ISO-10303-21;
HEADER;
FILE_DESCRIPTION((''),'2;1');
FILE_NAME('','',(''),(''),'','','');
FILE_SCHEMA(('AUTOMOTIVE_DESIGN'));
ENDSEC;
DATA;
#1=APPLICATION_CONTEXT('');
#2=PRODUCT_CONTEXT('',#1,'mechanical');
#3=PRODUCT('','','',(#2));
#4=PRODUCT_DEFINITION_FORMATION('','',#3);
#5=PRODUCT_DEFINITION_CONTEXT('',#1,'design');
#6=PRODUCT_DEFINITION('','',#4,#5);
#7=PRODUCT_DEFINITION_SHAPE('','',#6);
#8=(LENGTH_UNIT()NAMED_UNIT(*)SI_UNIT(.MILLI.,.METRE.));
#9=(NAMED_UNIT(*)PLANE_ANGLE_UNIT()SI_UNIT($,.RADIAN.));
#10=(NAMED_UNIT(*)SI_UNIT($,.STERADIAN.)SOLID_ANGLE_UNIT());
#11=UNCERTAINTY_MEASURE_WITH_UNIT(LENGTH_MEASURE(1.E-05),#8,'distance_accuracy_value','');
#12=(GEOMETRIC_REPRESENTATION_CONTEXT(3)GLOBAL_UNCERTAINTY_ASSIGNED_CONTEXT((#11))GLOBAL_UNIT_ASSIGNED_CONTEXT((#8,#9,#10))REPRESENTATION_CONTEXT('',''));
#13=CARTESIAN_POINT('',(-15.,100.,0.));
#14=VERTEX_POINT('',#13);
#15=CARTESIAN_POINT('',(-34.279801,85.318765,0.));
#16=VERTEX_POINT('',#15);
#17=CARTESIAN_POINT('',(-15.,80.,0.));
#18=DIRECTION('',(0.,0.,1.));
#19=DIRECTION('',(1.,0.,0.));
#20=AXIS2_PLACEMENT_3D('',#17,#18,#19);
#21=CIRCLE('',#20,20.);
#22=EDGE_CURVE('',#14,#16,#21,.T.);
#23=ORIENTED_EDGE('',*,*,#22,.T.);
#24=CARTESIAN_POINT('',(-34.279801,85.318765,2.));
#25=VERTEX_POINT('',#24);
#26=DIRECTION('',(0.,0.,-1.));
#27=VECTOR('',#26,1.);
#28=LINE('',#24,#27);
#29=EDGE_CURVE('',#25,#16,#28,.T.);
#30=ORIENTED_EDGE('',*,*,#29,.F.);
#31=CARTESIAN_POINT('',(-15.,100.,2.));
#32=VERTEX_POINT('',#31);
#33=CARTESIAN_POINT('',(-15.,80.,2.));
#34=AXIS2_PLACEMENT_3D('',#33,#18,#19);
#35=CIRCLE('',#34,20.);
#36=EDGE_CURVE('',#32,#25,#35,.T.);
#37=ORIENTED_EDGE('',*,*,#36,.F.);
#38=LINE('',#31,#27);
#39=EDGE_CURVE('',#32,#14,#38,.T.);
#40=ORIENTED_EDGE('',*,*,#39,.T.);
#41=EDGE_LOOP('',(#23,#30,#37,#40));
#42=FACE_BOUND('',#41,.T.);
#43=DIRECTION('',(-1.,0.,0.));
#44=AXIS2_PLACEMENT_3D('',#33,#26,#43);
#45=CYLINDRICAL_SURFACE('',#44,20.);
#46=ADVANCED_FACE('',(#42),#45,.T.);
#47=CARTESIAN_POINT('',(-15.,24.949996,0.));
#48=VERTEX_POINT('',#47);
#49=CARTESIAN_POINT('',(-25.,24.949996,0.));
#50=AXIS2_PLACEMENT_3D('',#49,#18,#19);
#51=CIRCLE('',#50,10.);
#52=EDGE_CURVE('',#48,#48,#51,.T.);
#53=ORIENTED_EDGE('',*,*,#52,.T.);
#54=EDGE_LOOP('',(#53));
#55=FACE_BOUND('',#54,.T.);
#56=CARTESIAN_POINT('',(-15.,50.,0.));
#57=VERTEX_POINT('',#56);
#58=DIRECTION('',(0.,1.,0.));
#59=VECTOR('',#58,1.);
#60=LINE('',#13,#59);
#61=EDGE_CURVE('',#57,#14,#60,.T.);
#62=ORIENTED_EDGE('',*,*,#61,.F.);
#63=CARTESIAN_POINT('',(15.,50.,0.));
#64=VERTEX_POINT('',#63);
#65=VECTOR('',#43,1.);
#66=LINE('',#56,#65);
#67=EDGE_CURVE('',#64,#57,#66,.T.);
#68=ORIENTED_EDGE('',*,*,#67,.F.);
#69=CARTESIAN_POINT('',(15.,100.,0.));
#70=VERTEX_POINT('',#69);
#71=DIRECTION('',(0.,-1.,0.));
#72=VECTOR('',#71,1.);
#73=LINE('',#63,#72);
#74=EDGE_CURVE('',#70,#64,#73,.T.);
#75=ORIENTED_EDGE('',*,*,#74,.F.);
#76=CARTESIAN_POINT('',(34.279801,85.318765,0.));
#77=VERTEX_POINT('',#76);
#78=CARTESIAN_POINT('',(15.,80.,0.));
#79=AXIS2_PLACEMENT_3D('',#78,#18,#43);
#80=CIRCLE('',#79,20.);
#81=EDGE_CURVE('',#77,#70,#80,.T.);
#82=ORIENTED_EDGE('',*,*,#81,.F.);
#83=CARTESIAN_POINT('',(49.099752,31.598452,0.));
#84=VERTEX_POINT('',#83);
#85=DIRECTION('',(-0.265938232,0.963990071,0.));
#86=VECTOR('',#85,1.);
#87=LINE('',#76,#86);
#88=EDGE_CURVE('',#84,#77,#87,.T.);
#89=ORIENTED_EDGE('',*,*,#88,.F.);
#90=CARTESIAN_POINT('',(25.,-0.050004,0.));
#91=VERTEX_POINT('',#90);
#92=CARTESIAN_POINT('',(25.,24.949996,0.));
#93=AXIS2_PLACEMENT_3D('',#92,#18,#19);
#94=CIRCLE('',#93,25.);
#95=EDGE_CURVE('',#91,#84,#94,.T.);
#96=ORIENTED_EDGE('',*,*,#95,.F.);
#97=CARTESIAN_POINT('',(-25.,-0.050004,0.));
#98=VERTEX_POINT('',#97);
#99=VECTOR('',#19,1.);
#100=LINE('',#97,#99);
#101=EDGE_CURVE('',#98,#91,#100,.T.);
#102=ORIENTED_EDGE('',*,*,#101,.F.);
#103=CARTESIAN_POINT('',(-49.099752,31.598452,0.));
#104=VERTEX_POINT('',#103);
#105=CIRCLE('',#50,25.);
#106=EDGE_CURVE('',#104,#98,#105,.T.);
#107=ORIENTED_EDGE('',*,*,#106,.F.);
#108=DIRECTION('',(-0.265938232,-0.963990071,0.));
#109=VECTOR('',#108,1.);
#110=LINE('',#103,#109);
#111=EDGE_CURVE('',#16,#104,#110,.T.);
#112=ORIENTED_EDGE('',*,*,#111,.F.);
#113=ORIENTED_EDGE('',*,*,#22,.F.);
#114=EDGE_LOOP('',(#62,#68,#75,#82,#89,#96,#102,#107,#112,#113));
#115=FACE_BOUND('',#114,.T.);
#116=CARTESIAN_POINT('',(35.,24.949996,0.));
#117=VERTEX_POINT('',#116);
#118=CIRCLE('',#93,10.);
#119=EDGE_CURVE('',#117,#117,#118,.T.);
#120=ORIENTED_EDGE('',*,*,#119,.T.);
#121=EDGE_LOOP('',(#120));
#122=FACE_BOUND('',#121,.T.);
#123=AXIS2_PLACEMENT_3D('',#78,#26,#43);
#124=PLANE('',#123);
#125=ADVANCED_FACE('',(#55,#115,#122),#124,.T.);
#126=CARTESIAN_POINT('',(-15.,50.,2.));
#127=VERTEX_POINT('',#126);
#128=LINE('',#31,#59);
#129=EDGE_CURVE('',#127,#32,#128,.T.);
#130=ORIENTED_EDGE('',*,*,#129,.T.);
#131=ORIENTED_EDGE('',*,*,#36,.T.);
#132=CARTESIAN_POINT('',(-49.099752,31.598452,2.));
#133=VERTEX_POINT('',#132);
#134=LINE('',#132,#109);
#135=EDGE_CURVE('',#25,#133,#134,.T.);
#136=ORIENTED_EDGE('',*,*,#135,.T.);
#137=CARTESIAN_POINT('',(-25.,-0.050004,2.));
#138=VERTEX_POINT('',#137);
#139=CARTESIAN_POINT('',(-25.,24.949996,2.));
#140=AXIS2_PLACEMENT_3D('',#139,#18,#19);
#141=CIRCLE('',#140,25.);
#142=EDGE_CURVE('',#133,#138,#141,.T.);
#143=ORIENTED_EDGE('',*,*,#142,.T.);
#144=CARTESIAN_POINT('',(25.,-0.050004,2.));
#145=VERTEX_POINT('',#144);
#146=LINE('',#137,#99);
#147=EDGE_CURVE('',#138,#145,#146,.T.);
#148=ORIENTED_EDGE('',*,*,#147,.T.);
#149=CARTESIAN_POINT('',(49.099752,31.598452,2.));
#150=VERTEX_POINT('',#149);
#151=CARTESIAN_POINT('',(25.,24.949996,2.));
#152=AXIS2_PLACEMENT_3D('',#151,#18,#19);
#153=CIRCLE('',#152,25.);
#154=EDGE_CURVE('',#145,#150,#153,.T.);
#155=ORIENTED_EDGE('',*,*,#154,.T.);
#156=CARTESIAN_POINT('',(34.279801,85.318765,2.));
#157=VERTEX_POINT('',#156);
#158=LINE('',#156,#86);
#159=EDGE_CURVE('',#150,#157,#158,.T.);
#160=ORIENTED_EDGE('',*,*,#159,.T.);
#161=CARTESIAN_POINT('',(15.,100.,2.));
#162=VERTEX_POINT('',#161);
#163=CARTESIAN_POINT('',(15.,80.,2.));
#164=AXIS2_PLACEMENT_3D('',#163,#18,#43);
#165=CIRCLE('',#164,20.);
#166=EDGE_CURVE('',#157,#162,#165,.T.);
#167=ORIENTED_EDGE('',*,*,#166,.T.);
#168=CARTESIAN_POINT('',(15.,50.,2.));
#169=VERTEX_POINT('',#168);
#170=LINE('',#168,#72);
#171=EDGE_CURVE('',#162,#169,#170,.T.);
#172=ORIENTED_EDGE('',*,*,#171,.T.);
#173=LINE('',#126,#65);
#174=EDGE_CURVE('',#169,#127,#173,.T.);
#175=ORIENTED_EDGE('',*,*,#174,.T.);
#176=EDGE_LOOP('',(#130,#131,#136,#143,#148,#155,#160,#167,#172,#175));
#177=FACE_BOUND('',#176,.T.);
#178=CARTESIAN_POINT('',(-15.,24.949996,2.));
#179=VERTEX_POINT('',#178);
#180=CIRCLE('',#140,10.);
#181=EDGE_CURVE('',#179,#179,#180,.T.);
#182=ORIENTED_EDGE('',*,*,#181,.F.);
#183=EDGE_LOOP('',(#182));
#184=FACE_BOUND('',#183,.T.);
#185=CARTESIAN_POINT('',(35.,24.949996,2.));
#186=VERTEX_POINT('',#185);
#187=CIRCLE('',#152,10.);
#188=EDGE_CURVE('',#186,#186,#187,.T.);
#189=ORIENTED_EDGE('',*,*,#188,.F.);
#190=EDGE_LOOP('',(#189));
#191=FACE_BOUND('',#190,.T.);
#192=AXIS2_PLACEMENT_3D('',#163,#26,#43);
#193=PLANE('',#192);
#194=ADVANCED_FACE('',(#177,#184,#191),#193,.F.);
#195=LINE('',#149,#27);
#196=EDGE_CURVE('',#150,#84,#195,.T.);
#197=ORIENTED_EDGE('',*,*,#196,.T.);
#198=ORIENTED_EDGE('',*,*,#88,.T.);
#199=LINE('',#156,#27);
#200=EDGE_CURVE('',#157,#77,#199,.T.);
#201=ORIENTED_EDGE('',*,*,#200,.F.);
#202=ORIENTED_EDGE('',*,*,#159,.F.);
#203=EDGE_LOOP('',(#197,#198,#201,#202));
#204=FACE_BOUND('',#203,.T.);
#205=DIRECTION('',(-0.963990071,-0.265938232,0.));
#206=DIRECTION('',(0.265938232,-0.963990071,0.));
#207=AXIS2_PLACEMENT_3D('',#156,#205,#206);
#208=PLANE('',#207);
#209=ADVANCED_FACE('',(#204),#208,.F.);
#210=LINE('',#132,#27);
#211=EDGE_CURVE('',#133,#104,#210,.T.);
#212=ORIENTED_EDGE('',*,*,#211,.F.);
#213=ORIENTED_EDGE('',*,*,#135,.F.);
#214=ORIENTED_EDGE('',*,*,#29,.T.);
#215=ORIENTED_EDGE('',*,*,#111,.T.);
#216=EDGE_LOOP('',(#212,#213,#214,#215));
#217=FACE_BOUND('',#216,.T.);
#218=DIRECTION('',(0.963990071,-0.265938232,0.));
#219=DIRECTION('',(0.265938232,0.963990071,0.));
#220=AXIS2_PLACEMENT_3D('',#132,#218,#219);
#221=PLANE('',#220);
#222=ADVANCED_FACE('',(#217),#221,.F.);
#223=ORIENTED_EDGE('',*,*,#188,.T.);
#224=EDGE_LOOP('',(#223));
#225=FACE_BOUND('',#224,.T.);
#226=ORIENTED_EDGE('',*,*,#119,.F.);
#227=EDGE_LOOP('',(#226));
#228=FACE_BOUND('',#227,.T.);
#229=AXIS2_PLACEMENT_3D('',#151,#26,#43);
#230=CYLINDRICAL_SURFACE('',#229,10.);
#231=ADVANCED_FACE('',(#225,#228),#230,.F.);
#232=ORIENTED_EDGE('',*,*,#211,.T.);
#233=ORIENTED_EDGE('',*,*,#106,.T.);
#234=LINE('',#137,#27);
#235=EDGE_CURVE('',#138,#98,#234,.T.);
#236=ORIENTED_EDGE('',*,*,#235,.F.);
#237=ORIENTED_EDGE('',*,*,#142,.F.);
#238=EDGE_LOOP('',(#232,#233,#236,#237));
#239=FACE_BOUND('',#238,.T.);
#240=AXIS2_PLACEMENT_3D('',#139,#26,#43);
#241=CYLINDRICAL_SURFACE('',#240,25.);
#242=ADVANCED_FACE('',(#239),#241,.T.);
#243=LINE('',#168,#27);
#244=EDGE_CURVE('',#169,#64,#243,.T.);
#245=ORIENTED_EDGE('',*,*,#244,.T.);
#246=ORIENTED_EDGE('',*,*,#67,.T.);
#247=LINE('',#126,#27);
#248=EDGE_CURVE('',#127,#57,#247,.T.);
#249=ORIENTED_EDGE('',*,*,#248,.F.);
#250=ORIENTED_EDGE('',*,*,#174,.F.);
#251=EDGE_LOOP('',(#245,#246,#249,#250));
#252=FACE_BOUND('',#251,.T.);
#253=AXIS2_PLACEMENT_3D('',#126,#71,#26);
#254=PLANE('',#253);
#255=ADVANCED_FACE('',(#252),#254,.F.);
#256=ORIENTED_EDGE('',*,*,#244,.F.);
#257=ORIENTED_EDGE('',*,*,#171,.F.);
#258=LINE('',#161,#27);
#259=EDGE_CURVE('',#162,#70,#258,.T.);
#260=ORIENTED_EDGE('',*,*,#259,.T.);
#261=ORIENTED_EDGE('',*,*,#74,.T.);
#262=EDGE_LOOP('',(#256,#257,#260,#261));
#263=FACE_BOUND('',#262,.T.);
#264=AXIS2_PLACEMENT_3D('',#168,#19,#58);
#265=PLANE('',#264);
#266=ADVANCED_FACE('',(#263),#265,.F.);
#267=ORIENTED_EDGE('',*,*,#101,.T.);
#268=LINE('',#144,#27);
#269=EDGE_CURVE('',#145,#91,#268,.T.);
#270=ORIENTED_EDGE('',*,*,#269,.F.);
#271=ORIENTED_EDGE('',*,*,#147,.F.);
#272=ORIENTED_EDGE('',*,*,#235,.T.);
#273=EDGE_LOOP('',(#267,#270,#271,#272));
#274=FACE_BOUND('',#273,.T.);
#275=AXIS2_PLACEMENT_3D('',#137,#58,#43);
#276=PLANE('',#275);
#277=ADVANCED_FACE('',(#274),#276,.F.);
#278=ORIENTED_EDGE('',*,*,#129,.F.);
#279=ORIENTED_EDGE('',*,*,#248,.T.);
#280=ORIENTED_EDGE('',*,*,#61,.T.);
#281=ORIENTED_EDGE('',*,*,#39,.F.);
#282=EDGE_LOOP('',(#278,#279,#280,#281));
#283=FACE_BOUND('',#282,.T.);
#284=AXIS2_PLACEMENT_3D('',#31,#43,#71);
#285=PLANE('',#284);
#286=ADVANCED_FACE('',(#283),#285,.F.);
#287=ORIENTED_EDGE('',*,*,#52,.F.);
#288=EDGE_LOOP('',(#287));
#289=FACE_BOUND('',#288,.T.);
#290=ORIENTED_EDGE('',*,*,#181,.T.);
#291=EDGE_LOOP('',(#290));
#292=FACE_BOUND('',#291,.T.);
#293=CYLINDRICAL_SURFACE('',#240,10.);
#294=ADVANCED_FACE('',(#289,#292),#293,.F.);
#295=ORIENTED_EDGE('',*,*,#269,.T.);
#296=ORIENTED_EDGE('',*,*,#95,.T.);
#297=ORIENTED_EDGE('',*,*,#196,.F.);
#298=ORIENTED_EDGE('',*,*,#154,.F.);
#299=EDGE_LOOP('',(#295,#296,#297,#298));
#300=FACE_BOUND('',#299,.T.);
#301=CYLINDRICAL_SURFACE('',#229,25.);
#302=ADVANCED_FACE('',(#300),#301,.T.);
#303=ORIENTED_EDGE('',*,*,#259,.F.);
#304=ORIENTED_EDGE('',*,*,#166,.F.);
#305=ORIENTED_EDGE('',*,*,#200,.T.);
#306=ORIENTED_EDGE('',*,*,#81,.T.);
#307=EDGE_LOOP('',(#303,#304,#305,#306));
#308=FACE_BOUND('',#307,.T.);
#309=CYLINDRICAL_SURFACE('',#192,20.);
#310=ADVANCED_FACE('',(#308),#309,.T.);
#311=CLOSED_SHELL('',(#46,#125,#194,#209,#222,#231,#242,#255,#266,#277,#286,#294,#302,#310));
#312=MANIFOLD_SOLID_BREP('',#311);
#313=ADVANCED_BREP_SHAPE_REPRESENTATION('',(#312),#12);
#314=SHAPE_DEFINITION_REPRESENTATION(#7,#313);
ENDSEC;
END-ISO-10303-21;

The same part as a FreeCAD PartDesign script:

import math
import FreeCAD as App
import Part
import Sketcher
from FreeCAD import Vector
Q = App.Units.Quantity

doc = App.newDocument("Part")
body = doc.addObject("PartDesign::Body", "Body")

# Sketch on XY plane
sketch1 = body.newObject("Sketcher::SketchObject", "Sketch")
sketch1.AttachmentSupport = (doc.getObject("XY_Plane"), [""])
sketch1.MapMode = "FlatFace"
sketch1.addGeometry([
    Part.LineSegment(Vector(-15, 50, 0), Vector(-15, 100, 0)),  # 0
    Part.ArcOfCircle(Part.Circle(Vector(-15, 80, 0), Vector(0, 0, 1), 20), math.radians(90), math.radians(164.57729)),  # 1
    Part.LineSegment(Vector(-34.279801, 85.318765, 0), Vector(-49.099752, 31.598452, 0)),  # 2
    Part.ArcOfCircle(Part.Circle(Vector(-25, 24.949996, 0), Vector(0, 0, 1), 25), math.radians(164.57729), math.radians(270)),  # 3
    Part.LineSegment(Vector(-25, -0.050004, 0), Vector(25, -0.050004, 0)),  # 4
    Part.ArcOfCircle(Part.Circle(Vector(25, 24.949996, 0), Vector(0, 0, 1), 25), math.radians(-90), math.radians(15.42271)),  # 5
    Part.LineSegment(Vector(49.099752, 31.598452, 0), Vector(34.279801, 85.318765, 0)),  # 6
    Part.ArcOfCircle(Part.Circle(Vector(15, 80, 0), Vector(0, 0, 1), 20), math.radians(15.42271), math.radians(90)),  # 7
    Part.LineSegment(Vector(15, 100, 0), Vector(15, 50, 0)),  # 8
    Part.LineSegment(Vector(15, 50, 0), Vector(-15, 50, 0)),  # 9
    Part.Circle(Vector(25, 24.949996, 0), Vector(0, 0, 1), 10),  # 10
    Part.Circle(Vector(-25, 24.949996, 0), Vector(0, 0, 1), 10),  # 11
], False)
sketch1.addConstraint([
    Sketcher.Constraint("Coincident", 0, 2, 1, 1),
    Sketcher.Constraint("Tangent", 1, 2, 2, 1),
    Sketcher.Constraint("Tangent", 2, 2, 3, 1),
    Sketcher.Constraint("Tangent", 3, 2, 4, 1),
    Sketcher.Constraint("Tangent", 4, 2, 5, 1),
    Sketcher.Constraint("Tangent", 5, 2, 6, 1),
    Sketcher.Constraint("Tangent", 6, 2, 7, 1),
    Sketcher.Constraint("Coincident", 7, 2, 8, 1),
    Sketcher.Constraint("Coincident", 8, 2, 9, 1),
    Sketcher.Constraint("Coincident", 9, 2, 0, 1),
    Sketcher.Constraint("Vertical", 0),
    Sketcher.Constraint("Horizontal", 4),
    Sketcher.Constraint("Vertical", 8),
    Sketcher.Constraint("Horizontal", 9),
    Sketcher.Constraint("Coincident", 10, 3, 5, 3),
    Sketcher.Constraint("Coincident", 11, 3, 3, 3),
    Sketcher.Constraint("Equal", 3, 5),
    Sketcher.Constraint("Equal", 1, 7),
    Sketcher.Constraint("Equal", 10, 11),
    Sketcher.Constraint("Symmetric", 1, 3, 7, 3, -2),
    Sketcher.Constraint("Horizontal", 2, 2, 5, 2),
    Sketcher.Constraint("Vertical", 1, 3, 0, 2),
    Sketcher.Constraint("Equal", 4, 0),
    Sketcher.Constraint("Diameter", 10, Q("20 mm")),
    Sketcher.Constraint("Radius", 1, Q("20 mm")),
    Sketcher.Constraint("Radius", 3, Q("25 mm")),
    Sketcher.Constraint("DistanceX", 4, 1, 4, 2, Q("50 mm")),
    Sketcher.Constraint("DistanceX", 9, 2, 9, 1, Q("30 mm")),
    Sketcher.Constraint("DistanceX", 1, 3, -1, 1, Q("15 mm")),
    Sketcher.Constraint("DistanceY", -1, 1, 1, 3, Q("80 mm")),
    Sketcher.Constraint("DistanceX", -1, 1, 6, 2, Q("34.279801 mm")),
])
pad1 = body.newObject("PartDesign::Pad", "Pad")
pad1.Profile = sketch1
pad1.Length = 2

doc.recompute()
